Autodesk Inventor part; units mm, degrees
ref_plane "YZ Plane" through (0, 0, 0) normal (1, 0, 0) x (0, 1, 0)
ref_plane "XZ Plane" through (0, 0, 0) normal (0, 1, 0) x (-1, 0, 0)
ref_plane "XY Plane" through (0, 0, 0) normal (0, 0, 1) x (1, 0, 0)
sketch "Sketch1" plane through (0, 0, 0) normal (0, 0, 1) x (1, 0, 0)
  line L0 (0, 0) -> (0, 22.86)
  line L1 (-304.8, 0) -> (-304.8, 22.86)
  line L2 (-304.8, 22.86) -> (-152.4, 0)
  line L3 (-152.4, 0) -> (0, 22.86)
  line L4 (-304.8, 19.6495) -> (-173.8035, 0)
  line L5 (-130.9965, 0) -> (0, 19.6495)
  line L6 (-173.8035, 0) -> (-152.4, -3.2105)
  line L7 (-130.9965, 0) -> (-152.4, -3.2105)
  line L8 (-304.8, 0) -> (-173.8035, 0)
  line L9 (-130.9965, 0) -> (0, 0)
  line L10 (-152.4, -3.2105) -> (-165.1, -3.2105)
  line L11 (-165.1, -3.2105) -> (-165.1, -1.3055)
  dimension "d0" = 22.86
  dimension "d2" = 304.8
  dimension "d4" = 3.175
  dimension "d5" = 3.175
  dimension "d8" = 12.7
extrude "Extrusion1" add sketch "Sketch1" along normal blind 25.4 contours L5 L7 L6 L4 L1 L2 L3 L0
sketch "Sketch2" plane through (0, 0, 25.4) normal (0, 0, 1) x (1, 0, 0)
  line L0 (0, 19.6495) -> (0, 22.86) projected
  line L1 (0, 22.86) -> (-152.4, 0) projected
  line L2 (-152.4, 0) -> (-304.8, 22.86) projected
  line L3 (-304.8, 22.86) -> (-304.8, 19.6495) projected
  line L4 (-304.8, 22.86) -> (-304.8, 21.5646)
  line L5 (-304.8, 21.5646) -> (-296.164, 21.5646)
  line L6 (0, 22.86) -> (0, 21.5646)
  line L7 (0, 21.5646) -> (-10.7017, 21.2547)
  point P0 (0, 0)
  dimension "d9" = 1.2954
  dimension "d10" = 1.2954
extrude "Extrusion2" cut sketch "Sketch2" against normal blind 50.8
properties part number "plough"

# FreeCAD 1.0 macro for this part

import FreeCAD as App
import Part
import Sketcher

V = App.Vector
Q = App.Units.Quantity


def add_polygon(sketch, points):
    """Adds a closed chain of lines whose ends are joined by coincident constraints."""
    first, n = sketch.GeometryCount, len(points)
    for a, b in zip(points, points[1:] + points[:1]):
        sketch.addGeometry(Part.LineSegment(App.Vector(*a, 0), App.Vector(*b, 0)), False)
    for i in range(n):
        sketch.addConstraint(Sketcher.Constraint("Coincident", first + i, 2, first + (i + 1) % n, 1))

doc = App.newDocument("Part")
body = doc.addObject("PartDesign::Body", "Body")

# Sketch on XY plane
sketch1 = body.newObject("Sketcher::SketchObject", "Sketch")
sketch1.AttachmentSupport = (doc.getObject("XY_Plane"), [""])
sketch1.MapMode = "FlatFace"
add_polygon(sketch1, [(-131, 0), (0, 19.6), (0, 22.9), (-152.4, 0), (-304.8, 22.9), (-304.8, 19.6), (-173.8, 0), (-152.4, -3.2)])  # lines 0-7
sketch1.addConstraint(Sketcher.Constraint("Vertical", 1))
sketch1.addConstraint(Sketcher.Constraint("Vertical", 4))
sketch1.addConstraint(Sketcher.Constraint("PointOnObject", 0, 2, -2))
sketch1.addConstraint(Sketcher.Constraint("PointOnObject", 2, 2, -1))
sketch1.addConstraint(Sketcher.Constraint("PointOnObject", 5, 2, -1))
sketch1.addConstraint(Sketcher.Constraint("PointOnObject", 7, 2, -1))
sketch1.addConstraint(Sketcher.Constraint("Parallel", 0, 2))
sketch1.addConstraint(Sketcher.Constraint("Parallel", 3, 5))
sketch1.addConstraint(Sketcher.Constraint("Parallel", 5, 6))
sketch1.addConstraint(Sketcher.Constraint("Parallel", 2, 7))
sketch1.addConstraint(Sketcher.Constraint("Horizontal", 1, 2, 3, 2))
sketch1.addConstraint(Sketcher.Constraint("Horizontal", 0, 2, 4, 2))
sketch1.addConstraint(Sketcher.Constraint("Equal", 2, 3))
sketch1.addConstraint(Sketcher.Constraint("DistanceX", 3, 2, -1, 1, Q("12 in")))
sketch1.addConstraint(Sketcher.Constraint("DistanceY", -1, 1, 1, 2, Q("0.9 in")))
sketch1.addConstraint(Sketcher.Constraint("DistanceY", 1, 1, 1, 2, Q("0.1264 in")))
pad1 = body.newObject("PartDesign::Pad", "Pad")
pad1.Profile = sketch1
pad1.Length = Q("1 in")

# Sketch on XY plane
sketch2 = body.newObject("Sketcher::SketchObject", "Sketch001")
sketch2.AttachmentSupport = (doc.getObject("XY_Plane"), [""])
sketch2.MapMode = "FlatFace"
sketch2.AttachmentOffset = App.Placement(V(0, 0, 1 * 25.4), App.Rotation())
add_polygon(sketch2, [(-10.7, 21.3), (0, 21.6), (0, 22.9)])  # lines 0-2
add_polygon(sketch2, [(-304.8, 21.6), (-296.2, 21.6), (-304.8, 22.9)])  # lines 3-5
sketch2.addConstraint(Sketcher.Constraint("Vertical", 1))
sketch2.addConstraint(Sketcher.Constraint("Horizontal", 3))
sketch2.addConstraint(Sketcher.Constraint("Vertical", 5))
sketch2.addConstraint(Sketcher.Constraint("PointOnObject", 0, 2, -2))
sketch2.addConstraint(Sketcher.Constraint("Horizontal", 0, 2, 3, 2))
sketch2.addConstraint(Sketcher.Constraint("Horizontal", 1, 2, 4, 2))
sketch2.addConstraint(Sketcher.Constraint("DistanceY", 1, 1, 1, 2, Q("0.051 in")))
sketch2.addConstraint(Sketcher.Constraint("DistanceX", 4, 2, -1, 1, Q("12 in")))
sketch2.addConstraint(Sketcher.Constraint("DistanceX", 3, 1, 3, 2, Q("0.34 in")))
sketch2.addConstraint(Sketcher.Constraint("DistanceY", -1, 1, 1, 2, Q("0.9 in")))
sketch2.addConstraint(Sketcher.Constraint("Angle", 2, Q("-171.4692 deg")))
sketch2.addConstraint(Sketcher.Constraint("Distance", 0, Q("0.4215 in")))
pocket1 = body.newObject("PartDesign::Pocket", "Pocket")
pocket1.Profile = sketch2
pocket1.Length = Q("2 in")

doc.recompute()
